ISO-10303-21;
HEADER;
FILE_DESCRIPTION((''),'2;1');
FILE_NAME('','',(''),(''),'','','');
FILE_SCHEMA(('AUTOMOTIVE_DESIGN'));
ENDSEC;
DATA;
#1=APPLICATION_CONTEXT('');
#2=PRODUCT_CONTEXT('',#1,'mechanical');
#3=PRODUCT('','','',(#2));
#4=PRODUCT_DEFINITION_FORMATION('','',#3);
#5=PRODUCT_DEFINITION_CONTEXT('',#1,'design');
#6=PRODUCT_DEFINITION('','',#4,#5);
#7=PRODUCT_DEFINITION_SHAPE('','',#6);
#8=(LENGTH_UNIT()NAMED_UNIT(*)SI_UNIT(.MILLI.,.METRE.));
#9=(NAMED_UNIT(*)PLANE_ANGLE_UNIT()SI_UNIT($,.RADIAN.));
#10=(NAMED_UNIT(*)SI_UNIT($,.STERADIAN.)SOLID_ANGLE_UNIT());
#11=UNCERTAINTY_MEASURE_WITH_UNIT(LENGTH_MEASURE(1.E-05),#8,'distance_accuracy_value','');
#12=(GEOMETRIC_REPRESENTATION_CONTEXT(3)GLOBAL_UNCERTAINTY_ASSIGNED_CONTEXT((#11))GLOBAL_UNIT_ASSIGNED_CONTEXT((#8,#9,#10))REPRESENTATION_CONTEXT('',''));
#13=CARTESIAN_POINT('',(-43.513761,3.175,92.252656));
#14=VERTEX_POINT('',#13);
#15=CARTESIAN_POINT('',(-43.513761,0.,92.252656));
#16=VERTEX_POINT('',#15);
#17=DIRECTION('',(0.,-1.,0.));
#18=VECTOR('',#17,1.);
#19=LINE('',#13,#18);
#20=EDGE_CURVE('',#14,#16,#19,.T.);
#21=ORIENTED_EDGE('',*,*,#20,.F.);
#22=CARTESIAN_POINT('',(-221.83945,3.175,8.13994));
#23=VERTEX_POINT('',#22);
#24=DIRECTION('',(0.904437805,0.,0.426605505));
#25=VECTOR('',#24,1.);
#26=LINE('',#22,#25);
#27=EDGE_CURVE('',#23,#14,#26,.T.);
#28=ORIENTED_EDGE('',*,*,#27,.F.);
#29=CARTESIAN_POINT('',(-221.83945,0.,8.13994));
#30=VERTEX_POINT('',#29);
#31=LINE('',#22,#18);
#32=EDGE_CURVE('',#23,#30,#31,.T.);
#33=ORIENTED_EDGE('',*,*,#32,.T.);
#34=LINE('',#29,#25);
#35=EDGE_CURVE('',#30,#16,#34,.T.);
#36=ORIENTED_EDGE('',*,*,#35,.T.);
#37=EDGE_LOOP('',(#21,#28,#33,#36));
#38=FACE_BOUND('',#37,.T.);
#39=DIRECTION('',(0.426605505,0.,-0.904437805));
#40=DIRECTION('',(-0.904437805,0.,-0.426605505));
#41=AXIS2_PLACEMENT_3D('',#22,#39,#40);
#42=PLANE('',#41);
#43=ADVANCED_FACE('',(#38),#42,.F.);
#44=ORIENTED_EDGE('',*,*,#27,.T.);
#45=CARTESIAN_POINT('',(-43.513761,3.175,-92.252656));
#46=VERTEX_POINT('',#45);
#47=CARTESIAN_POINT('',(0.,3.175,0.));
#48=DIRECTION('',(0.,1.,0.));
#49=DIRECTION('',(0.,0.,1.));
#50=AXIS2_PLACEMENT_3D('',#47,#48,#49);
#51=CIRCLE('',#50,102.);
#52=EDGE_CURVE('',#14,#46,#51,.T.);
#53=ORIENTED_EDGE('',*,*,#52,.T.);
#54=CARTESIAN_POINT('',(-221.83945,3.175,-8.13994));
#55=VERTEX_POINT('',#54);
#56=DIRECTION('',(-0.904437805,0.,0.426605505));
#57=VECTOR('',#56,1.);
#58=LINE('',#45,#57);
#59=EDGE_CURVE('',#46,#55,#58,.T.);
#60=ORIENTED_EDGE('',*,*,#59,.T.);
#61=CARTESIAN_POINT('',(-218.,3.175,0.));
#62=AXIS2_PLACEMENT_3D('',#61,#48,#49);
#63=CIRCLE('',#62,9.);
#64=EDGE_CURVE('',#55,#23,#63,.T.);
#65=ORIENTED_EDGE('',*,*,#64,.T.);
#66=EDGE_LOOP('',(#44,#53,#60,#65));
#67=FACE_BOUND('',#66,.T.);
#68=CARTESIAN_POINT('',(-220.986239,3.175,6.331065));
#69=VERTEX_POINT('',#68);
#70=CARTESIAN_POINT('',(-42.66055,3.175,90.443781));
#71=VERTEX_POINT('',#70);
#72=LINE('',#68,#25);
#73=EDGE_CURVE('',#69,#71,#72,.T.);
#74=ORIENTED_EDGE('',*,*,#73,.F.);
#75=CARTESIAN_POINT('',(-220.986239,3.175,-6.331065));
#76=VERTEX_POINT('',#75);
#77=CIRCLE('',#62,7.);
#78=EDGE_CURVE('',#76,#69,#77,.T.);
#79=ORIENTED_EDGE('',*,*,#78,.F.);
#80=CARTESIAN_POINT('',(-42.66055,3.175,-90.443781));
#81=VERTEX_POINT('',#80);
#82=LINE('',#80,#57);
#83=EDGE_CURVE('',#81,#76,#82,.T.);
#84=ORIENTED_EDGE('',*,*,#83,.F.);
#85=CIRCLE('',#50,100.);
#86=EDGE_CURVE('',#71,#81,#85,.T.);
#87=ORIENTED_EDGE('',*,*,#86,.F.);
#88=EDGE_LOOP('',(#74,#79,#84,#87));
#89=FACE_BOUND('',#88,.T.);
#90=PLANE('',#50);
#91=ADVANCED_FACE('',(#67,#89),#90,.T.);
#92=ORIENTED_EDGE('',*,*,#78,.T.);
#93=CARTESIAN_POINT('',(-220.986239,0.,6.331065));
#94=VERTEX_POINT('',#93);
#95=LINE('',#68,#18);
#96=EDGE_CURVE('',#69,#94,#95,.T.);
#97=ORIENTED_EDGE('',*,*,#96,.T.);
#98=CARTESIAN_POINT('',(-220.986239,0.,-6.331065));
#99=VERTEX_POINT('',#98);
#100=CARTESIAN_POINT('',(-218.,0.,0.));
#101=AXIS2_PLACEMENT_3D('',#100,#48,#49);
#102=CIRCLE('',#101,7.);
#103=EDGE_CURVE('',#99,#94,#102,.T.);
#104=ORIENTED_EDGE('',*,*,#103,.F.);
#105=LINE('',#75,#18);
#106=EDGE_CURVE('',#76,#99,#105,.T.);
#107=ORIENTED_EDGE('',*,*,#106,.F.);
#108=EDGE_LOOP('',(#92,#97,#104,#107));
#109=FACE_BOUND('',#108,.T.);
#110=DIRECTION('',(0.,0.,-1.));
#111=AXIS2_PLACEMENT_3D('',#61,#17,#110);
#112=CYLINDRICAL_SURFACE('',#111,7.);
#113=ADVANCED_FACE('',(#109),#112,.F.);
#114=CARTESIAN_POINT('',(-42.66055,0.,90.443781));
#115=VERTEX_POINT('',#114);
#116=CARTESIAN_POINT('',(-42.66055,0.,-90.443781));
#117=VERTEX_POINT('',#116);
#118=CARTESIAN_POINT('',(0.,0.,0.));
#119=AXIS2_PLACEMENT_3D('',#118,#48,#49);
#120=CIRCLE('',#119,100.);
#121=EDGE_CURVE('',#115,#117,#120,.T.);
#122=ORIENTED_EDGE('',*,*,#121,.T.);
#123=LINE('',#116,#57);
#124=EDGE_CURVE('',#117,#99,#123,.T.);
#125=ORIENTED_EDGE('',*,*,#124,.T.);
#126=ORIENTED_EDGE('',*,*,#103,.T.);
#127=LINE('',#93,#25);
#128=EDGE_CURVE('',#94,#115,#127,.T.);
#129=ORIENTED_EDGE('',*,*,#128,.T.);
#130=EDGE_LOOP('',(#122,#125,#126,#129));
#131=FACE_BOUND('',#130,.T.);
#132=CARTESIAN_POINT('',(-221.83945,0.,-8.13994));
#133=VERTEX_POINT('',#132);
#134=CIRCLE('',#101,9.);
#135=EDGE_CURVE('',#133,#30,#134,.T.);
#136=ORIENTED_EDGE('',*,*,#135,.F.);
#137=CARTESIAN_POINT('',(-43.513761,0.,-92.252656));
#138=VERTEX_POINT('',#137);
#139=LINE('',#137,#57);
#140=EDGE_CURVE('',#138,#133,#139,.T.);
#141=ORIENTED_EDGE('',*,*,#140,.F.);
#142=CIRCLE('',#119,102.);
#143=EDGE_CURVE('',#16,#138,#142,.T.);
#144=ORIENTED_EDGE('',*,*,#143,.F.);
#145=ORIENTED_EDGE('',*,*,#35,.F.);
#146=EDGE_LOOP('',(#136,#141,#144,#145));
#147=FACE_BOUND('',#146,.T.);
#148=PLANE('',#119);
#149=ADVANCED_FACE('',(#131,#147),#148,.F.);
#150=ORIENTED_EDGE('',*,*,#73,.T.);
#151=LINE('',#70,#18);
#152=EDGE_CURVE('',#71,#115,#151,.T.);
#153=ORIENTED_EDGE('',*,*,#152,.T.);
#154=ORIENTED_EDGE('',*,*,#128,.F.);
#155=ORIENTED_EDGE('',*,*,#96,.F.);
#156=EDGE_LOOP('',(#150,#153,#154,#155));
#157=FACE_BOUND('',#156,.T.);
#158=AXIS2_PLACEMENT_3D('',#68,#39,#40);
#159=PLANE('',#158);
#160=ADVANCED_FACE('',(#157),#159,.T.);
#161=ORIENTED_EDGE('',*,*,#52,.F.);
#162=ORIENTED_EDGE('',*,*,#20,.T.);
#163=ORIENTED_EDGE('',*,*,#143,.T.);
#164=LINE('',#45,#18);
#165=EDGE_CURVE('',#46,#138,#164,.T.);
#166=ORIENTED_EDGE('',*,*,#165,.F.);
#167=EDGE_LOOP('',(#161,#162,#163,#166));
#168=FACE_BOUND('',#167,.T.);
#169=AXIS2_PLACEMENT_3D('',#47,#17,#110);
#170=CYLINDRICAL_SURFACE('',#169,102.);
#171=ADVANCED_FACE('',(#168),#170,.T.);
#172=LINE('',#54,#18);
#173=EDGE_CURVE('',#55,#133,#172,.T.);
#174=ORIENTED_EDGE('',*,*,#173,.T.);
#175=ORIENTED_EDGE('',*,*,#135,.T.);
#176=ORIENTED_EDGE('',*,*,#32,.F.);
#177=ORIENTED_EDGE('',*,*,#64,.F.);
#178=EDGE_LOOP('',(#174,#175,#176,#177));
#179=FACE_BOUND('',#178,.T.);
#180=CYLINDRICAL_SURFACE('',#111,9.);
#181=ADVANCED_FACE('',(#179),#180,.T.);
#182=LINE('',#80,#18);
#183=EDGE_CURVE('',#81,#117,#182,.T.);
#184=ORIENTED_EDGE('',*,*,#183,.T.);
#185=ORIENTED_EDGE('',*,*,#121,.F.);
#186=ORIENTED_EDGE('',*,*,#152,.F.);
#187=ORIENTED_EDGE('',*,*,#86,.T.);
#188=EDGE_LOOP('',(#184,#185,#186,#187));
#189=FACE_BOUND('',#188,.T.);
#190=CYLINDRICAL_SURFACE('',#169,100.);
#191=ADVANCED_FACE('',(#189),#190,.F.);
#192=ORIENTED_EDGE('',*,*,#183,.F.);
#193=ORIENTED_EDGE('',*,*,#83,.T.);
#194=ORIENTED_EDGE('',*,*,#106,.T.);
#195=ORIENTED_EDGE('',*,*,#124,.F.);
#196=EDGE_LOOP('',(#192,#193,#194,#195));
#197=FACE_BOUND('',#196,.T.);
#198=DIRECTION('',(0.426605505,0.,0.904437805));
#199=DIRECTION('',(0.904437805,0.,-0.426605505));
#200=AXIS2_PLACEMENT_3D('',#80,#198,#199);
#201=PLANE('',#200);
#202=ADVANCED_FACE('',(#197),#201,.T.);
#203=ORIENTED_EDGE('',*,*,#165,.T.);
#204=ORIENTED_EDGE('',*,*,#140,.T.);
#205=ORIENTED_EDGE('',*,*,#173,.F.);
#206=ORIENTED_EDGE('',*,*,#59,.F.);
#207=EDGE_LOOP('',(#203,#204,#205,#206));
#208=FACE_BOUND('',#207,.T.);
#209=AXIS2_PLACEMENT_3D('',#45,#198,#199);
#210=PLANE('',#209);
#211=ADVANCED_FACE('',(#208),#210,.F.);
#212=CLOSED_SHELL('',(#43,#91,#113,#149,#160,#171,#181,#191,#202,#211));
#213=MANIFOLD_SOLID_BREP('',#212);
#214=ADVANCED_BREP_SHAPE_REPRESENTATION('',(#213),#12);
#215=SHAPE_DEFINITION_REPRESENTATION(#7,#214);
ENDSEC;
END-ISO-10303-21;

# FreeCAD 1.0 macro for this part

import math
import FreeCAD as App
import Part
import Sketcher
Q = App.Units.Quantity

doc = App.newDocument("Part")
params = doc.addObject("Spreadsheet::Sheet", "Params")
for row, (alias, value) in enumerate([
    ("sketch1_radius", "9 mm"),
    ("sketch1_radius2", "102 mm"),
    ("sketch1_radius3", "100 mm"),
    ("pad1_length", "3.175 mm"),
], start=1):
    params.set(f"A{row}", alias)
    params.set(f"B{row}", "=" + value)
    params.setAlias(f"B{row}", alias)

body = doc.addObject("PartDesign::Body", "Body")

# Sketch on XZ plane
sketch1 = body.newObject("Sketcher::SketchObject", "Sketch")
sketch1.AttachmentSupport = (doc.getObject("XZ_Plane"), [""])
sketch1.MapMode = "FlatFace"
sketch1.addGeometry([
    Part.LineSegment(App.Vector(-44, -92, 0), App.Vector(-222, -8, 0)),  # 0
    Part.ArcOfCircle(Part.Circle(App.Vector(-218, 0, 0), App.Vector(0, 0, 1), 9), math.radians(115), math.radians(245)),  # 1
    Part.LineSegment(App.Vector(-222, 8, 0), App.Vector(-44, 92, 0)),  # 2
    Part.ArcOfCircle(Part.Circle(App.Vector(0, 0, 0), App.Vector(0, 0, 1), 102), math.radians(-115), math.radians(115)),  # 3
    Part.LineSegment(App.Vector(-221, -6, 0), App.Vector(-43, -90, 0)),  # 4
    Part.ArcOfCircle(Part.Circle(App.Vector(0, 0, 0), App.Vector(0, 0, 1), 100), math.radians(-115), math.radians(115)),  # 5
    Part.LineSegment(App.Vector(-43, 90, 0), App.Vector(-221, 6, 0)),  # 6
    Part.ArcOfCircle(Part.Circle(App.Vector(-218, 0, 0), App.Vector(0, 0, 1), 7), math.radians(115), math.radians(245)),  # 7
], False)
sketch1.addConstraint([
    Sketcher.Constraint("Tangent", 0, 2, 1, 2),
    Sketcher.Constraint("Tangent", 1, 1, 2, 1),
    Sketcher.Constraint("Tangent", 2, 2, 3, 2),
    Sketcher.Constraint("Tangent", 3, 1, 0, 1),
    Sketcher.Constraint("Tangent", 4, 2, 5, 1),
    Sketcher.Constraint("Tangent", 5, 2, 6, 1),
    Sketcher.Constraint("Tangent", 6, 2, 7, 1),
    Sketcher.Constraint("Tangent", 7, 2, 4, 1),
    Sketcher.Constraint("Coincident", 3, 3, -1, 1),
    Sketcher.Constraint("Coincident", 5, 3, -1, 1),
    Sketcher.Constraint("Coincident", 7, 3, 1, 3),
    Sketcher.Constraint("PointOnObject", 1, 3, -1),
    Sketcher.Constraint("Parallel", 0, 4),
    Sketcher.Constraint("Radius", 1, Q("9 mm")),
    Sketcher.Constraint("Radius", 3, Q("102 mm")),
    Sketcher.Constraint("Radius", 5, Q("100 mm")),
    Sketcher.Constraint("DistanceX", 1, 3, -1, 1, Q("218 mm")),
])
sketch1.setExpression("Constraints[13]", "Params.sketch1_radius")
sketch1.setExpression("Constraints[14]", "Params.sketch1_radius2")
sketch1.setExpression("Constraints[15]", "Params.sketch1_radius3")
pad1 = body.newObject("PartDesign::Pad", "Pad")
pad1.Profile = sketch1
pad1.setExpression("Length", "Params.pad1_length")
pad1.Reversed = True

doc.recompute()
